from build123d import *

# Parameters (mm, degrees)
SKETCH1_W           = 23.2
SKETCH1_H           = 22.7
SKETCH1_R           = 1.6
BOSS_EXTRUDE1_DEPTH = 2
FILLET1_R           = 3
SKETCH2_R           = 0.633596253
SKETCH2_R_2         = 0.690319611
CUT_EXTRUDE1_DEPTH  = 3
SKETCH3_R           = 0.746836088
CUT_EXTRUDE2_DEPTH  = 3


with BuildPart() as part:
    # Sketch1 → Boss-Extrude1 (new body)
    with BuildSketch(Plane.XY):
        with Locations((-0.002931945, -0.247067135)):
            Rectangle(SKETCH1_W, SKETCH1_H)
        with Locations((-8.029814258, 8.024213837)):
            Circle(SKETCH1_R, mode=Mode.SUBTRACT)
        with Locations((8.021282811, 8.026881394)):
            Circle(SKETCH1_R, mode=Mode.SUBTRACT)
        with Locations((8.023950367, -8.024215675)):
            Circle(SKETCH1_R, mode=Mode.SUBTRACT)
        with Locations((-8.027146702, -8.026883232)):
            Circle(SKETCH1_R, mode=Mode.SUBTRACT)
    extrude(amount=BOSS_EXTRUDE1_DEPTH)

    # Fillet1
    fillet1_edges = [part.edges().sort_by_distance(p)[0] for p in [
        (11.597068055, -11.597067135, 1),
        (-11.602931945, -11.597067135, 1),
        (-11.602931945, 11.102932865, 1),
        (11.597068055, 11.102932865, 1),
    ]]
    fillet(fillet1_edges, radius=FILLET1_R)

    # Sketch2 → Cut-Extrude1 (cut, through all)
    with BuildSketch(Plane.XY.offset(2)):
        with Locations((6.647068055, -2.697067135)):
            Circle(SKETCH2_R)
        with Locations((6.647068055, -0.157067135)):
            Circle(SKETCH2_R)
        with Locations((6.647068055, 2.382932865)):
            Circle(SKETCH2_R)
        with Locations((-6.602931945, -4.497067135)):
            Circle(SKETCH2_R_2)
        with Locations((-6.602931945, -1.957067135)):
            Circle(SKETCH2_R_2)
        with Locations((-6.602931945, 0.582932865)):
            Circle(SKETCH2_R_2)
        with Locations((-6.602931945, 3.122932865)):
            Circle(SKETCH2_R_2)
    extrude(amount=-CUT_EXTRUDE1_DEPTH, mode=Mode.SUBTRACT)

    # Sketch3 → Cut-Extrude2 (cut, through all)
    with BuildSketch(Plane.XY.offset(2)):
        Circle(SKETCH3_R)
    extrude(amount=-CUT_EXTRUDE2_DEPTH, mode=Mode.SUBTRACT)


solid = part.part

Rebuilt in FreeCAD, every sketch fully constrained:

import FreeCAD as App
import Part
import Sketcher
from FreeCAD import Vector


def edges_at(feature, points):
    """Names of the edges that pass closest to the given points."""
    edges = feature.Shape.Edges
    near = lambda p: min(range(len(edges)), key=lambda i: edges[i].distToShape(Part.Vertex(*p))[0])
    return sorted({f"Edge{near(p) + 1}" for p in points})

doc = App.newDocument("Part")
params = doc.addObject("Spreadsheet::Sheet", "Params")
for row, (alias, value) in enumerate([
    ("sketch1_diameter", "3.2 mm"),
    ("sketch1_width", "23.2 mm"),
    ("sketch1_height", "22.7 mm"),
    ("pad1_length", "2 mm"),
    ("fillet_radius", "3 mm"),
], start=1):
    params.set(f"A{row}", alias)
    params.set(f"B{row}", "=" + value)
    params.setAlias(f"B{row}", alias)

body = doc.addObject("PartDesign::Body", "Body")

# Sketch on XY plane
sketch1 = body.newObject("Sketcher::SketchObject", "Sketch")
sketch1.AttachmentSupport = (doc.getObject("XY_Plane"), [""])
sketch1.MapMode = "FlatFace"
sketch1.addGeometry([
    Part.LineSegment(Vector(-11.6, 11.1, 0), Vector(-11.6, -11.6, 0)),  # 0
    Part.LineSegment(Vector(-11.6, -11.6, 0), Vector(11.6, -11.6, 0)),  # 1
    Part.LineSegment(Vector(11.6, -11.6, 0), Vector(11.6, 11.1, 0)),  # 2
    Part.LineSegment(Vector(11.6, 11.1, 0), Vector(-11.6, 11.1, 0)),  # 3
    Part.Circle(Vector(-8, -8, 0), Vector(0, 0, 1), 1.6),  # 4
    Part.Circle(Vector(8, -8, 0), Vector(0, 0, 1), 1.6),  # 5
    Part.Circle(Vector(-8, 8, 0), Vector(0, 0, 1), 1.6),  # 6
    Part.Circle(Vector(8, 8, 0), Vector(0, 0, 1), 1.6),  # 7
], False)
sketch1.addConstraint([
    Sketcher.Constraint("Coincident", 0, 2, 1, 1),
    Sketcher.Constraint("Coincident", 1, 2, 2, 1),
    Sketcher.Constraint("Coincident", 2, 2, 3, 1),
    Sketcher.Constraint("Coincident", 3, 2, 0, 1),
    Sketcher.Constraint("Vertical", 0),
    Sketcher.Constraint("Horizontal", 1),
    Sketcher.Constraint("Vertical", 2),
    Sketcher.Constraint("Horizontal", 3),
    Sketcher.Constraint("Equal", 4, 5),
    Sketcher.Constraint("Equal", 5, 6),
    Sketcher.Constraint("Equal", 6, 7),
    Sketcher.Constraint("Diameter", 4, 3.2),
    Sketcher.Constraint("DistanceX", 1, 1, 1, 2, 23.2),
    Sketcher.Constraint("DistanceY", 0, 2, 0, 1, 22.7),
    Sketcher.Constraint("DistanceX", -1, 1, 5, 3, 8.02395),
    Sketcher.Constraint("DistanceY", -1, 1, 7, 3, 8.026881),
    Sketcher.Constraint("DistanceX", 0, 2, -1, 1, 11.602932),
    Sketcher.Constraint("DistanceY", 5, 3, 6, 3, 16.04843),
    Sketcher.Constraint("DistanceX", 4, 3, 7, 3, 16.04843),
    Sketcher.Constraint("DistanceY", 0, 2, 6, 3, 19.621281),
    Sketcher.Constraint("DistanceY", 0, 2, 7, 3, 19.623949),
    Sketcher.Constraint("DistanceX", 4, 3, -1, 1, 8.027147),
    Sketcher.Constraint("DistanceY", 4, 3, -1, 1, 8.026883),
    Sketcher.Constraint("DistanceX", 6, 3, -1, 1, 8.029814),
])
sketch1.setExpression("Constraints[11]", "Params.sketch1_diameter")
sketch1.setExpression("Constraints[12]", "Params.sketch1_width")
sketch1.setExpression("Constraints[13]", "Params.sketch1_height")
pad1 = body.newObject("PartDesign::Pad", "Pad")
pad1.Profile = sketch1
pad1.setExpression("Length", "Params.pad1_length")
doc.recompute()

fillet = body.newObject("PartDesign::Fillet", "Fillet")
fillet.Base = (pad1, edges_at(pad1, [
    (11.597, -11.597, 1),
    (-11.603, -11.597, 1),
    (-11.603, 11.103, 1),
    (11.597, 11.103, 1),
]))
fillet.setExpression("Radius", "Params.fillet_radius")

# Sketch on XY plane
sketch2 = body.newObject("Sketcher::SketchObject", "Sketch001")
sketch2.AttachmentSupport = (doc.getObject("XY_Plane"), [""])
sketch2.MapMode = "FlatFace"
sketch2.AttachmentOffset = App.Placement(Vector(0, 0, 2), App.Rotation())
sketch2.addGeometry([
    Part.Circle(Vector(6.6, -2.7, 0), Vector(0, 0, 1), 0.6),  # 0
    Part.Circle(Vector(6.6, -0.2, 0), Vector(0, 0, 1), 0.6),  # 1
    Part.Circle(Vector(6.6, 2.4, 0), Vector(0, 0, 1), 0.6),  # 2
    Part.Circle(Vector(-6.6, -4.5, 0), Vector(0, 0, 1), 0.7),  # 3
    Part.Circle(Vector(-6.6, -2, 0), Vector(0, 0, 1), 0.7),  # 4
    Part.Circle(Vector(-6.6, 0.6, 0), Vector(0, 0, 1), 0.7),  # 5
    Part.Circle(Vector(-6.6, 3.1, 0), Vector(0, 0, 1), 0.7),  # 6
], False)
sketch2.addConstraint([
    Sketcher.Constraint("Equal", 0, 1),
    Sketcher.Constraint("Equal", 1, 2),
    Sketcher.Constraint("Equal", 3, 4),
    Sketcher.Constraint("Equal", 4, 5),
    Sketcher.Constraint("Equal", 5, 6),
    Sketcher.Constraint("Vertical", 0, 3, 1, 3),
    Sketcher.Constraint("Vertical", 1, 3, 2, 3),
    Sketcher.Constraint("Vertical", 3, 3, 4, 3),
    Sketcher.Constraint("Vertical", 4, 3, 5, 3),
    Sketcher.Constraint("Vertical", 5, 3, 6, 3),
    Sketcher.Constraint("DistanceY", 3, 3, 0, 3, 1.8),
    Sketcher.Constraint("DistanceY", 4, 3, 1, 3, 1.8),
    Sketcher.Constraint("DistanceY", 5, 3, 2, 3, 1.8),
    Sketcher.Constraint("Diameter", 3, 1.380639),
    Sketcher.Constraint("DistanceY", 0, 3, 1, 3, 2.54),
    Sketcher.Constraint("DistanceY", 1, 3, 2, 3, 2.54),
    Sketcher.Constraint("DistanceX", 3, 3, 0, 3, 13.25),
    Sketcher.Constraint("DistanceY", 5, 3, 6, 3, 2.54),
    Sketcher.Constraint("Diameter", 0, 1.267193),
    Sketcher.Constraint("DistanceX", -1, 1, 0, 3, 6.647068),
    Sketcher.Constraint("DistanceY", 0, 3, -1, 1, 2.697067),
])
pocket1 = body.newObject("PartDesign::Pocket", "Pocket")
pocket1.Profile = sketch2
pocket1.Type = "ThroughAll"

# Sketch on XY plane
sketch3 = body.newObject("Sketcher::SketchObject", "Sketch002")
sketch3.AttachmentSupport = (doc.getObject("XY_Plane"), [""])
sketch3.MapMode = "FlatFace"
sketch3.AttachmentOffset = App.Placement(Vector(0, 0, 2), App.Rotation())
sketch3.addGeometry(Part.Circle(Vector(0, 0, 0), Vector(0, 0, 1), 0.7), False)
sketch3.addConstraint([
    Sketcher.Constraint("Coincident", 0, 3, -1, 1),
    Sketcher.Constraint("Diameter", 0, 1.493672),
])
pocket2 = body.newObject("PartDesign::Pocket", "Pocket001")
pocket2.Profile = sketch3
pocket2.Type = "ThroughAll"

doc.recompute()
